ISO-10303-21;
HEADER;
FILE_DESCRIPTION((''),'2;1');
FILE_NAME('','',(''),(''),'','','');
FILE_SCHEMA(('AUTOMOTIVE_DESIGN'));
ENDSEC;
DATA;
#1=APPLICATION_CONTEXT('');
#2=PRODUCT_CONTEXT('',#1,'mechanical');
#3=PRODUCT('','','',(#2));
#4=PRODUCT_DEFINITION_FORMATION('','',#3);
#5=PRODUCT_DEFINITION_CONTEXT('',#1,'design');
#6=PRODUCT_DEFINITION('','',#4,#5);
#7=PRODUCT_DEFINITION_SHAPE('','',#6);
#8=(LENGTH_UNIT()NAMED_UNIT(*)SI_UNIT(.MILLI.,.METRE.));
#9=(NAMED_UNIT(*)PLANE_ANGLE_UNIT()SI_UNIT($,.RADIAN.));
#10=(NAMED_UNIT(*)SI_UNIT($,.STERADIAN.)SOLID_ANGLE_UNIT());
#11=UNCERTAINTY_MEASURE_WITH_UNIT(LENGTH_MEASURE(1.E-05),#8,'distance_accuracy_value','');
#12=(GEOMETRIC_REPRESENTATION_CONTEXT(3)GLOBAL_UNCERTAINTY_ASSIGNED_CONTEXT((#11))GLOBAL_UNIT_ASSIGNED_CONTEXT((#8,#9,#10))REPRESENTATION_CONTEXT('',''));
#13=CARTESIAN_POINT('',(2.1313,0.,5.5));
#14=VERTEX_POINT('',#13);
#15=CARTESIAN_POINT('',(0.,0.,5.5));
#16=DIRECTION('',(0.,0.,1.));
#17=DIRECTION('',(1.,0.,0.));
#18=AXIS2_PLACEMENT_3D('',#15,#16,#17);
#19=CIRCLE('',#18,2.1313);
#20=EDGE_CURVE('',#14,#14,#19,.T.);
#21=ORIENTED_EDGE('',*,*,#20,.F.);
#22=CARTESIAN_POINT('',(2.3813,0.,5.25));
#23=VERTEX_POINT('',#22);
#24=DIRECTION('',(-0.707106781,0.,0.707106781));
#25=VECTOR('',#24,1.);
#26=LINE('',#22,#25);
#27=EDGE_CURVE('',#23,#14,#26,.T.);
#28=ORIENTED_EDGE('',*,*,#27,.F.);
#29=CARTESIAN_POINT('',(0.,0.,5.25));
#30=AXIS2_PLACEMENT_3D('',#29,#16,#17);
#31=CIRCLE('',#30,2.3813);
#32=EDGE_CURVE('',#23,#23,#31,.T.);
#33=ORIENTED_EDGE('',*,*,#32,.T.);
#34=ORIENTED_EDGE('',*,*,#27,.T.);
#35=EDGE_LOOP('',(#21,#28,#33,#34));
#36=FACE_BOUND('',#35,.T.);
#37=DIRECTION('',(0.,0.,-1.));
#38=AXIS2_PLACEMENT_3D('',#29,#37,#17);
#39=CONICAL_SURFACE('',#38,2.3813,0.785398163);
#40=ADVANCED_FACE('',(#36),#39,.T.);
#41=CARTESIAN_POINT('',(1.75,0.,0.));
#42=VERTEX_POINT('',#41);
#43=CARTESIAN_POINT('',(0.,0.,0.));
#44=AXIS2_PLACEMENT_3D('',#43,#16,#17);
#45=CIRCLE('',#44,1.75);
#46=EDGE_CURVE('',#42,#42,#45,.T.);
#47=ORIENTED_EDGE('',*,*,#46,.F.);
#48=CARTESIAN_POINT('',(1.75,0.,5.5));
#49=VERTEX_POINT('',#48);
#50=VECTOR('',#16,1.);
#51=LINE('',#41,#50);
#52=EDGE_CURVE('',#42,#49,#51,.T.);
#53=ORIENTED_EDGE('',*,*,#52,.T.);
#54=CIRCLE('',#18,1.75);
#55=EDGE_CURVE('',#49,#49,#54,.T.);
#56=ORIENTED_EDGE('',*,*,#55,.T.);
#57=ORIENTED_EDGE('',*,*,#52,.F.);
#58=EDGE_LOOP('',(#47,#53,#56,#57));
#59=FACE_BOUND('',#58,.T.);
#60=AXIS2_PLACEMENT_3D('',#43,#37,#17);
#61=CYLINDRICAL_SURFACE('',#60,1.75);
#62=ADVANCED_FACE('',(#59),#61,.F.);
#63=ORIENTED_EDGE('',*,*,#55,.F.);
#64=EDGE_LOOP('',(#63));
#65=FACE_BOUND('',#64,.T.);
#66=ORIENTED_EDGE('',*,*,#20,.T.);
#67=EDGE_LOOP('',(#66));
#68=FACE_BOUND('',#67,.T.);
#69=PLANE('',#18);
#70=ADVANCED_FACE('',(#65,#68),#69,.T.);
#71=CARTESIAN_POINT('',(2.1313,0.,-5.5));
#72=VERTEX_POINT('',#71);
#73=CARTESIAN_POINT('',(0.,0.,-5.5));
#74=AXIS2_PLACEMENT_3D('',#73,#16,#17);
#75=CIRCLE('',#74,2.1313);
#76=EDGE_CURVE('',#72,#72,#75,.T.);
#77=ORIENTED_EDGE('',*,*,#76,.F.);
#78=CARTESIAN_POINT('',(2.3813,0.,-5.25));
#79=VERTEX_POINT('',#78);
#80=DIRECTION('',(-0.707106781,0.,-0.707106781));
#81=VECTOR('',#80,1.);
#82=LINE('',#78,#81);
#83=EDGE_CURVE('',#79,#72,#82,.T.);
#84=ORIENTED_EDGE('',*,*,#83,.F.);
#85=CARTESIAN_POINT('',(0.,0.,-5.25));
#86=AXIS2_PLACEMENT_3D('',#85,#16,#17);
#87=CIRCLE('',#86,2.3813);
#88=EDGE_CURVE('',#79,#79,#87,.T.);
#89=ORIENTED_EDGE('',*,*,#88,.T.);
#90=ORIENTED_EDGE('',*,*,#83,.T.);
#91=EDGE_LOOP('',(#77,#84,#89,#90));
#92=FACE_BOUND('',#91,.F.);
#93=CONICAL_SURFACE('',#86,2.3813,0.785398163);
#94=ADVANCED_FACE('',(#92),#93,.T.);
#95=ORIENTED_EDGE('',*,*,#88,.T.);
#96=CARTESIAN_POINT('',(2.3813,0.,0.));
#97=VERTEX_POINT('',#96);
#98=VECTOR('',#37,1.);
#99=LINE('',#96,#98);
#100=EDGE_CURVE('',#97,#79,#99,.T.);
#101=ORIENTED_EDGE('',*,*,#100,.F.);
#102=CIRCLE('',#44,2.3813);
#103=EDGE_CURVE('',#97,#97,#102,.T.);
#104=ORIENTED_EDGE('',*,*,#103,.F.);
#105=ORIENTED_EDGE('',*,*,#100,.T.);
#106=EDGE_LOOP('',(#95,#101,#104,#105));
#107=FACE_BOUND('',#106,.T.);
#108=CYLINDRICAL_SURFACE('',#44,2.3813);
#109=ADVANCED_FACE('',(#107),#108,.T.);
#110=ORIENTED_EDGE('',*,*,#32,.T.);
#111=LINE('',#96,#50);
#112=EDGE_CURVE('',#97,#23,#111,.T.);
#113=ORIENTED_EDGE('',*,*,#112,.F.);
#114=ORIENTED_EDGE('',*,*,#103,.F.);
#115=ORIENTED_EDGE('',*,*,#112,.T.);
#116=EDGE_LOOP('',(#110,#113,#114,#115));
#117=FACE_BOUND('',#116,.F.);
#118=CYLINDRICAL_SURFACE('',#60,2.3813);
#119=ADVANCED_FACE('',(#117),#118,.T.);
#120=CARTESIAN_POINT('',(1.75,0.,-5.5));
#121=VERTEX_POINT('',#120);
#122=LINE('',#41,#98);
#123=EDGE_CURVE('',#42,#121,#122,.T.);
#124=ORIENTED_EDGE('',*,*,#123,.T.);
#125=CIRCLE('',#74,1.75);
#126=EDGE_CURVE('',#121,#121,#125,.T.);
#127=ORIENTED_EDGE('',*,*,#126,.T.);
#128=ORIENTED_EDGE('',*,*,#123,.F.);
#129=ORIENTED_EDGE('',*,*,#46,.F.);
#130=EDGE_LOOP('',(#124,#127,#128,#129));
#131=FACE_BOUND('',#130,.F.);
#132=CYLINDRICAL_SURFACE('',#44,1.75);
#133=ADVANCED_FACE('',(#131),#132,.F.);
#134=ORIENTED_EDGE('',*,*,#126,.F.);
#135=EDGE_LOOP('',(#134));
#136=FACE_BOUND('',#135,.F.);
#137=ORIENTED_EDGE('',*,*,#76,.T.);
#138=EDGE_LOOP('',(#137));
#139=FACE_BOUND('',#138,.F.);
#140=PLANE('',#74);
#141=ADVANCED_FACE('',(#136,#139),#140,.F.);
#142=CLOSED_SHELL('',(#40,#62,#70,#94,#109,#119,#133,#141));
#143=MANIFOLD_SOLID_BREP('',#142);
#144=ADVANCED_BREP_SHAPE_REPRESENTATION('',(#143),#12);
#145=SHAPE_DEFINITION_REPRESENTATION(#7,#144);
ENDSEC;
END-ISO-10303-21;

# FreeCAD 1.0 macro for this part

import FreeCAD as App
import Part
import Sketcher
from FreeCAD import Vector
Q = App.Units.Quantity


def edges_at(feature, points):
    """Names of the edges that pass closest to the given points."""
    edges = feature.Shape.Edges
    near = lambda p: min(range(len(edges)), key=lambda i: edges[i].distToShape(Part.Vertex(*p))[0])
    return sorted({f"Edge{near(p) + 1}" for p in points})

doc = App.newDocument("Part")
body = doc.addObject("PartDesign::Body", "Body")

# Sketch on XY plane
sketch1 = body.newObject("Sketcher::SketchObject", "Sketch")
sketch1.AttachmentSupport = (doc.getObject("XY_Plane"), [""])
sketch1.MapMode = "FlatFace"
sketch1.addGeometry([
    Part.Circle(Vector(0, 0, 0), Vector(0, 0, 1), 2.4),
    Part.Circle(Vector(0, 0, 0), Vector(0, 0, 1), 1.8),
], False)
sketch1.addConstraint([
    Sketcher.Constraint("Coincident", 0, 3, -1, 1),
    Sketcher.Constraint("Coincident", 1, 3, -1, 1),
    Sketcher.Constraint("Diameter", 1, Q("3.5 mm")),
    Sketcher.Constraint("Diameter", 0, Q("4.7626 mm")),
])
pad1 = body.newObject("PartDesign::Pad", "Pad")
pad1.Profile = sketch1
pad1.Length = 11
pad1.Midplane = True
doc.recompute()

chamfer = body.newObject("PartDesign::Chamfer", "Chamfer")
chamfer.Base = (pad1, edges_at(pad1, [(-2.22, 0.861, -5.5), (-2.22, -0.861, 5.5)]))
chamfer.Size = 0.25

doc.recompute()
